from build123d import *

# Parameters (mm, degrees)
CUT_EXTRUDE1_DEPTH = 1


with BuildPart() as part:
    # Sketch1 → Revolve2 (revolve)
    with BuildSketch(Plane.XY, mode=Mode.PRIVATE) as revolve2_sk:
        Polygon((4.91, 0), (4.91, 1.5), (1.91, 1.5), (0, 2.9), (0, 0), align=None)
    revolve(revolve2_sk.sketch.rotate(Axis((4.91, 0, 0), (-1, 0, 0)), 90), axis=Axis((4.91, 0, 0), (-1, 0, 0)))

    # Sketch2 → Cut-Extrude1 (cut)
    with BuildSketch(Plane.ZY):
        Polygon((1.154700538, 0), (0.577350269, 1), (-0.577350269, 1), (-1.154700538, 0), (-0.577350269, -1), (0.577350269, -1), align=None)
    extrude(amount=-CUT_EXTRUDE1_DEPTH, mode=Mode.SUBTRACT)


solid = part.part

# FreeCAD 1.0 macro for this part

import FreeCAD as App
import Part
import Sketcher
from FreeCAD import Vector
Q = App.Units.Quantity


def add_polygon(sketch, points):
    """Adds a closed chain of lines whose ends are joined by coincident constraints."""
    first, n = sketch.GeometryCount, len(points)
    for a, b in zip(points, points[1:] + points[:1]):
        sketch.addGeometry(Part.LineSegment(App.Vector(*a, 0), App.Vector(*b, 0)), False)
    for i in range(n):
        sketch.addConstraint(Sketcher.Constraint("Coincident", first + i, 2, first + (i + 1) % n, 1))

doc = App.newDocument("Part")
body = doc.addObject("PartDesign::Body", "Body")

# Sketch on XY plane
sketch1 = body.newObject("Sketcher::SketchObject", "Sketch")
sketch1.AttachmentSupport = (doc.getObject("XY_Plane"), [""])
sketch1.MapMode = "FlatFace"
add_polygon(sketch1, [(4.9, 0), (4.9, 1.5), (1.9, 1.5), (0, 2.9), (0, 0)])  # lines 0-4
sketch1.addConstraint(Sketcher.Constraint("Vertical", 0))
sketch1.addConstraint(Sketcher.Constraint("Horizontal", 1))
sketch1.addConstraint(Sketcher.Constraint("Vertical", 3))
sketch1.addConstraint(Sketcher.Constraint("Horizontal", 4))
sketch1.addConstraint(Sketcher.Constraint("Coincident", 3, 2, -1, 1))
sketch1.addConstraint(Sketcher.Constraint("DistanceX", 1, 2, 1, 1, Q("3 mm")))
sketch1.addConstraint(Sketcher.Constraint("DistanceY", 0, 1, 0, 2, Q("1.5 mm")))
sketch1.addConstraint(Sketcher.Constraint("DistanceY", 3, 2, 3, 1, Q("2.9 mm")))
sketch1.addConstraint(Sketcher.Constraint("DistanceX", 4, 1, 4, 2, Q("4.91 mm")))
revolution = body.newObject("PartDesign::Revolution", "Revolution")
revolution.Profile = sketch1
revolution.ReferenceAxis = (sketch1, ["H_Axis"])
revolution.Angle = 360

# Sketch on YZ plane
sketch2 = body.newObject("Sketcher::SketchObject", "Sketch001")
sketch2.AttachmentSupport = (doc.getObject("YZ_Plane"), [""])
sketch2.MapMode = "FlatFace"
add_polygon(sketch2, [(0, 1.2), (1, 0.6), (1, -0.6), (0, -1.2), (-1, -0.6), (-1, 0.6)])  # lines 0-5
sketch2.addConstraint(Sketcher.Constraint("Vertical", 1))
sketch2.addConstraint(Sketcher.Constraint("Vertical", 4))
sketch2.addConstraint(Sketcher.Constraint("Symmetric", 0, 2, 3, 2, -1, 1))
sketch2.addConstraint(Sketcher.Constraint("Symmetric", 2, 2, 5, 2, -1, 1))
sketch2.addConstraint(Sketcher.Constraint("PointOnObject", 2, 2, -2))
sketch2.addConstraint(Sketcher.Constraint("Parallel", 2, 5))
sketch2.addConstraint(Sketcher.Constraint("Horizontal", 1, 2, 3, 2))
sketch2.addConstraint(Sketcher.Constraint("Angle", 0, Q("-30 deg")))
sketch2.addConstraint(Sketcher.Constraint("DistanceX", -1, 1, 0, 2, Q("1 mm")))
sketch2.addConstraint(Sketcher.Constraint("DistanceY", 1, 2, 1, 1, Q("1.154701 mm")))
pocket1 = body.newObject("PartDesign::Pocket", "Pocket")
pocket1.Profile = sketch2
pocket1.Length = 1
pocket1.Reversed = True

doc.recompute()
